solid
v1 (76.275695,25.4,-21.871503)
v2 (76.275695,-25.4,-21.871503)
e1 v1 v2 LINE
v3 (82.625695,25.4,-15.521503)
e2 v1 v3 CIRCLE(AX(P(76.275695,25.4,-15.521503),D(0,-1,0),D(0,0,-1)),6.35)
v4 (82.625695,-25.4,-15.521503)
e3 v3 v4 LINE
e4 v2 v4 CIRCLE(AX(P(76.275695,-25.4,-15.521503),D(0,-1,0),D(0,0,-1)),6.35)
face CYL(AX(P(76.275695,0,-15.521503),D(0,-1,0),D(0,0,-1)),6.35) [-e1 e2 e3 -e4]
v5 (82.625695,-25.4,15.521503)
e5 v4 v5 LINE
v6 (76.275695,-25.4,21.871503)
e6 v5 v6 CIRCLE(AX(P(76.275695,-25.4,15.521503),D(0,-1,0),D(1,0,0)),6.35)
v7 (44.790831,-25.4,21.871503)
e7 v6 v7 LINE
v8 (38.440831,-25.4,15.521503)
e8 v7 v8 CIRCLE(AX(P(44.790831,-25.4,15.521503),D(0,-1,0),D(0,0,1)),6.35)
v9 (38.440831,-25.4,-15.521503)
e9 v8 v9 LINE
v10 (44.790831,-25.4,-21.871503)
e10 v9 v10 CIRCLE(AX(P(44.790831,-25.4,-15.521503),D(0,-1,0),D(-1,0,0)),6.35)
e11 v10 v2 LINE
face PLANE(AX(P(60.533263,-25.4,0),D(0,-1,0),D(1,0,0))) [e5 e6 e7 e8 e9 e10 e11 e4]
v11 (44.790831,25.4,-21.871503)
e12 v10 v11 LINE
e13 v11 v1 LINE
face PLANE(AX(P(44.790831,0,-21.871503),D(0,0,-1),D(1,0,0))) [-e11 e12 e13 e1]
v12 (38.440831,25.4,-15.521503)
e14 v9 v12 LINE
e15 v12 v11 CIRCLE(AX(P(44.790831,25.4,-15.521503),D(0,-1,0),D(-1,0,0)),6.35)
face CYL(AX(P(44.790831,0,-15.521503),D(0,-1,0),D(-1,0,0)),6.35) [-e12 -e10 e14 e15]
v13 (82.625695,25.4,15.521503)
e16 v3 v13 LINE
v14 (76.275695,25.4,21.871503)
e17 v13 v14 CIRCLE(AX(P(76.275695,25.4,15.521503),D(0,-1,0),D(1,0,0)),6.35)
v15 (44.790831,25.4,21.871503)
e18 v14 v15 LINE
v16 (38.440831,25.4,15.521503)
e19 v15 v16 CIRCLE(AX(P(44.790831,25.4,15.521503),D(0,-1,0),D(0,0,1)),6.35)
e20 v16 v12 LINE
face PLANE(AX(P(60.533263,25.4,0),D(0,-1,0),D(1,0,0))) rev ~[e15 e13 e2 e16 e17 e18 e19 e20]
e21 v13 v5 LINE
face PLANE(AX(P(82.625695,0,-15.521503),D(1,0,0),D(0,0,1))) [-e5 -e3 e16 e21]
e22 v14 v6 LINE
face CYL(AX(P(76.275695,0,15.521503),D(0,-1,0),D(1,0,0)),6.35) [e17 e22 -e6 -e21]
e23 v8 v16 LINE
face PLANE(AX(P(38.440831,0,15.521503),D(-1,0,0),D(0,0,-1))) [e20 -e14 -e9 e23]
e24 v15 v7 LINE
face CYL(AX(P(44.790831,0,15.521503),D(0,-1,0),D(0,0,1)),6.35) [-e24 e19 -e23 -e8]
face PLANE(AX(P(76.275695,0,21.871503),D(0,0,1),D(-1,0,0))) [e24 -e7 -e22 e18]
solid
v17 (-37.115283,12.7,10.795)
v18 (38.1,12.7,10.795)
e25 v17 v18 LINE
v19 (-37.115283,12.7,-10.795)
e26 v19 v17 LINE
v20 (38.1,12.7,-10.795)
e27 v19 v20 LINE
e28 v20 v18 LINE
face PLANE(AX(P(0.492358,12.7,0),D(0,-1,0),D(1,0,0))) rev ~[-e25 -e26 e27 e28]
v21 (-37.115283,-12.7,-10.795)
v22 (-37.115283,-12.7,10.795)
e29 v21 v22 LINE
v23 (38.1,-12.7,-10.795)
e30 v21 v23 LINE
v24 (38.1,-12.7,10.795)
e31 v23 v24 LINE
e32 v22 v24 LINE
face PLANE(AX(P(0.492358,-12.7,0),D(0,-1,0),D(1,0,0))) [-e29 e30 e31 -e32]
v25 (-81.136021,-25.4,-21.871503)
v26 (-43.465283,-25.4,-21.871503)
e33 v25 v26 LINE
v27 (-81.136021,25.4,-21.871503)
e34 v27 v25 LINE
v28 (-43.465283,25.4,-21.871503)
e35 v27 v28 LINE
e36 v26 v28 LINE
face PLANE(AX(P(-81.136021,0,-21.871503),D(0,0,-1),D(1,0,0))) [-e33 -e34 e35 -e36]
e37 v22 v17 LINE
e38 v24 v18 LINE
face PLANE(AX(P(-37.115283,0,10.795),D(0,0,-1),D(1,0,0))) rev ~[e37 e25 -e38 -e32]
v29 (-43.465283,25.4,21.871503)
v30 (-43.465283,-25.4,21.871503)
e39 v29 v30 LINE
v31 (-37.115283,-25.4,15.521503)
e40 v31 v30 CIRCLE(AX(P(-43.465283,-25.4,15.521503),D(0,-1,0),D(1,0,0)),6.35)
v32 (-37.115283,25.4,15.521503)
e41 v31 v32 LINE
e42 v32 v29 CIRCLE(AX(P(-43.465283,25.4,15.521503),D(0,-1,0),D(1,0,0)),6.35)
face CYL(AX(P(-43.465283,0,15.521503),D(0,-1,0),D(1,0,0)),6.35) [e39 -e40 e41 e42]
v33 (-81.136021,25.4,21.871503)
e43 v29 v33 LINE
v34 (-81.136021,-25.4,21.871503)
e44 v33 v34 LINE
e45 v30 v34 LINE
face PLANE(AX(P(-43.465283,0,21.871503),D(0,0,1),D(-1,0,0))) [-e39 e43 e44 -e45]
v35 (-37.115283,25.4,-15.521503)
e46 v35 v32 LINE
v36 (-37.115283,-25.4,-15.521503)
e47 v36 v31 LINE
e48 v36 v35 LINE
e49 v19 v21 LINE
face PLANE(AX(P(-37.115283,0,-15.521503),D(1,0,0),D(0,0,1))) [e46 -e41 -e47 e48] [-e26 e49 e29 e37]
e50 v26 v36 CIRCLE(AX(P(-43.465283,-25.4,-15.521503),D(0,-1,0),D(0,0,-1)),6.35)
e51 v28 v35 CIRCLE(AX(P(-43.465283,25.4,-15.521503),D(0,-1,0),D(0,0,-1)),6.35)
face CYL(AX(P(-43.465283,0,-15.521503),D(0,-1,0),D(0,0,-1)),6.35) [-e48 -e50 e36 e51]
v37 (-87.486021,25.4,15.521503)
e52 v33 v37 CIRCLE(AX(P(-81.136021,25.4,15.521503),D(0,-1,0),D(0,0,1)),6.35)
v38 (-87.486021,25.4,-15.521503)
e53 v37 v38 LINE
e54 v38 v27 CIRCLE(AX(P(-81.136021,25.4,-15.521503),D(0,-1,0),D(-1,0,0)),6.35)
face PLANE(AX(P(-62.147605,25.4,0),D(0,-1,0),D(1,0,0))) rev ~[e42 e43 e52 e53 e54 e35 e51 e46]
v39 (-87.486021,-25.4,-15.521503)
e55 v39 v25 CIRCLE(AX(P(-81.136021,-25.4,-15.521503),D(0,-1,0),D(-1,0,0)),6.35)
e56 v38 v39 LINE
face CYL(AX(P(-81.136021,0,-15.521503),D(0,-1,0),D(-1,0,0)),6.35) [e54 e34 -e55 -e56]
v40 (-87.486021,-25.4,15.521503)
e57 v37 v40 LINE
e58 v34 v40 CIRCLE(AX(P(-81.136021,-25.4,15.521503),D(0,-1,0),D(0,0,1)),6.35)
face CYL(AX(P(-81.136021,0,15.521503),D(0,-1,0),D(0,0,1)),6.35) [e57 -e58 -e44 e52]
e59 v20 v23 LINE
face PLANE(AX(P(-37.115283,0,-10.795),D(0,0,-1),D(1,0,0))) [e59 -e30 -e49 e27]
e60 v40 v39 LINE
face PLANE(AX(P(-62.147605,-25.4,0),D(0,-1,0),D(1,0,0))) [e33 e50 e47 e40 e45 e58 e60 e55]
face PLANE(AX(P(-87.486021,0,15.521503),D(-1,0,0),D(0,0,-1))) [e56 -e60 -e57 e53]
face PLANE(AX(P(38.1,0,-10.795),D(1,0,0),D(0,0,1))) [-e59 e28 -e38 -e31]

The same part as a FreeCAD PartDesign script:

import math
import FreeCAD as App
import Part
import Sketcher
from FreeCAD import Vector
Q = App.Units.Quantity


def add_polygon(sketch, points):
    """Adds a closed chain of lines whose ends are joined by coincident constraints."""
    first, n = sketch.GeometryCount, len(points)
    for a, b in zip(points, points[1:] + points[:1]):
        sketch.addGeometry(Part.LineSegment(App.Vector(*a, 0), App.Vector(*b, 0)), False)
    for i in range(n):
        sketch.addConstraint(Sketcher.Constraint("Coincident", first + i, 2, first + (i + 1) % n, 1))

doc = App.newDocument("Part")
body = doc.addObject("PartDesign::Body", "Body")

sketch1 = doc.addObject("Sketcher::SketchObject", "Sketch")
body.addObject(sketch1)
sketch1.AttachmentSupport = (doc.XZ_Plane, [""])
sketch1.MapMode = "FlatFace"
sketch1.addGeometry(Part.LineSegment(Vector(45, -22, 0), Vector(76, -22, 0)), False)
sketch1.addGeometry(Part.ArcOfCircle(Part.Circle(Vector(76, -16, 0), Vector(0, 0, 1), 6), math.radians(-90), math.radians(0)), False)
sketch1.addGeometry(Part.LineSegment(Vector(83, -16, 0), Vector(83, 16, 0)), False)
sketch1.addGeometry(Part.ArcOfCircle(Part.Circle(Vector(76, 16, 0), Vector(0, 0, 1), 6), math.radians(0), math.radians(90)), False)
sketch1.addGeometry(Part.LineSegment(Vector(76, 22, 0), Vector(45, 22, 0)), False)
sketch1.addGeometry(Part.ArcOfCircle(Part.Circle(Vector(45, 16, 0), Vector(0, 0, 1), 6), math.radians(90), math.radians(180)), False)
sketch1.addGeometry(Part.LineSegment(Vector(38, 16, 0), Vector(38, -16, 0)), False)
sketch1.addGeometry(Part.ArcOfCircle(Part.Circle(Vector(45, -16, 0), Vector(0, 0, 1), 6), math.radians(180), math.radians(270)), False)
sketch1.addConstraint(Sketcher.Constraint("Tangent", 0, 2, 1, 1))
sketch1.addConstraint(Sketcher.Constraint("Tangent", 1, 2, 2, 1))
sketch1.addConstraint(Sketcher.Constraint("Tangent", 2, 2, 3, 1))
sketch1.addConstraint(Sketcher.Constraint("Tangent", 3, 2, 4, 1))
sketch1.addConstraint(Sketcher.Constraint("Tangent", 4, 2, 5, 1))
sketch1.addConstraint(Sketcher.Constraint("Tangent", 5, 2, 6, 1))
sketch1.addConstraint(Sketcher.Constraint("Tangent", 6, 2, 7, 1))
sketch1.addConstraint(Sketcher.Constraint("Tangent", 7, 2, 0, 1))
sketch1.addConstraint(Sketcher.Constraint("Horizontal", 0))
sketch1.addConstraint(Sketcher.Constraint("Vertical", 2))
sketch1.addConstraint(Sketcher.Constraint("Horizontal", 4))
sketch1.addConstraint(Sketcher.Constraint("Vertical", 6))
sketch1.addConstraint(Sketcher.Constraint("Equal", 1, 3))
sketch1.addConstraint(Sketcher.Constraint("Equal", 3, 5))
sketch1.addConstraint(Sketcher.Constraint("Equal", 5, 7))
sketch1.addConstraint(Sketcher.Constraint("Radius", 1, Q("0.25 in")))
sketch1.addConstraint(Sketcher.Constraint("DistanceX", 0, 1, 0, 2, 31.484864))
sketch1.addConstraint(Sketcher.Constraint("DistanceY", 2, 1, 2, 2, 31.043007))
sketch1.addConstraint(Sketcher.Constraint("DistanceX", -1, 1, 5, 3, 44.790831))
sketch1.addConstraint(Sketcher.Constraint("DistanceY", 1, 3, -1, 1, 15.521503))
pad1 = doc.addObject("PartDesign::Pad", "Pad")
body.addObject(pad1)
pad1.Profile = sketch1
pad1.Length = Q("2 in")
pad1.Midplane = True
body2 = doc.addObject("PartDesign::Body", "Body001")

sketch2 = doc.addObject("Sketcher::SketchObject", "Sketch001")
body2.addObject(sketch2)
sketch2.AttachmentSupport = (doc.getObject("XZ_Plane001"), [""])
sketch2.MapMode = "FlatFace"
sketch2.addGeometry(Part.ArcOfCircle(Part.Circle(Vector(-43, 16, 0), Vector(0, 0, 1), 6), math.radians(0), math.radians(90)), False)
sketch2.addGeometry(Part.LineSegment(Vector(-43, 22, 0), Vector(-81, 22, 0)), False)
sketch2.addGeometry(Part.ArcOfCircle(Part.Circle(Vector(-81, 16, 0), Vector(0, 0, 1), 6), math.radians(90), math.radians(180)), False)
sketch2.addGeometry(Part.LineSegment(Vector(-87, 16, 0), Vector(-87, -16, 0)), False)
sketch2.addGeometry(Part.ArcOfCircle(Part.Circle(Vector(-81, -16, 0), Vector(0, 0, 1), 6), math.radians(180), math.radians(270)), False)
sketch2.addGeometry(Part.LineSegment(Vector(-81, -22, 0), Vector(-43, -22, 0)), False)
sketch2.addGeometry(Part.ArcOfCircle(Part.Circle(Vector(-43, -16, 0), Vector(0, 0, 1), 6), math.radians(-90), math.radians(0)), False)
sketch2.addGeometry(Part.LineSegment(Vector(-37, -16, 0), Vector(-37, 16, 0)), False)
sketch2.addConstraint(Sketcher.Constraint("Tangent", 0, 2, 1, 1))
sketch2.addConstraint(Sketcher.Constraint("Tangent", 1, 2, 2, 1))
sketch2.addConstraint(Sketcher.Constraint("Tangent", 2, 2, 3, 1))
sketch2.addConstraint(Sketcher.Constraint("Tangent", 3, 2, 4, 1))
sketch2.addConstraint(Sketcher.Constraint("Tangent", 4, 2, 5, 1))
sketch2.addConstraint(Sketcher.Constraint("Tangent", 5, 2, 6, 1))
sketch2.addConstraint(Sketcher.Constraint("Tangent", 6, 2, 7, 1))
sketch2.addConstraint(Sketcher.Constraint("Tangent", 7, 2, 0, 1))
sketch2.addConstraint(Sketcher.Constraint("Horizontal", 1))
sketch2.addConstraint(Sketcher.Constraint("Vertical", 3))
sketch2.addConstraint(Sketcher.Constraint("Horizontal", 5))
sketch2.addConstraint(Sketcher.Constraint("Vertical", 7))
sketch2.addConstraint(Sketcher.Constraint("Equal", 0, 2))
sketch2.addConstraint(Sketcher.Constraint("Equal", 2, 4))
sketch2.addConstraint(Sketcher.Constraint("Equal", 4, 6))
sketch2.addConstraint(Sketcher.Constraint("Radius", 0, Q("0.25 in")))
sketch2.addConstraint(Sketcher.Constraint("DistanceX", 1, 2, 1, 1, Q("1.4830999 in")))
sketch2.addConstraint(Sketcher.Constraint("DistanceY", 3, 2, 3, 1, 31.043007))
sketch2.addConstraint(Sketcher.Constraint("DistanceX", 2, 3, -1, 1, 81.136021))
sketch2.addConstraint(Sketcher.Constraint("DistanceY", -1, 1, 0, 3, 15.521503))
pad2 = doc.addObject("PartDesign::Pad", "Pad001")
body2.addObject(pad2)
pad2.Profile = sketch2
pad2.Length = Q("2 in")
pad2.Midplane = True

sketch3 = doc.addObject("Sketcher::SketchObject", "Sketch002")
body2.addObject(sketch3)
sketch3.AttachmentSupport = (doc.getObject("XZ_Plane001"), [""])
sketch3.MapMode = "FlatFace"
add_polygon(sketch3, [(-37, 11), (-37, -11), (38, -11), (38, 11)])
sketch3.addConstraint(Sketcher.Constraint("Vertical", 0))
sketch3.addConstraint(Sketcher.Constraint("Horizontal", 1))
sketch3.addConstraint(Sketcher.Constraint("Vertical", 2))
sketch3.addConstraint(Sketcher.Constraint("Horizontal", 3))
sketch3.addConstraint(Sketcher.Constraint("DistanceY", 0, 2, 0, 1, Q("0.85 in")))
sketch3.addConstraint(Sketcher.Constraint("DistanceX", -1, 1, 1, 2, Q("1.5 in")))
sketch3.addConstraint(Sketcher.Constraint("DistanceY", 0, 2, -1, 1, Q("0.425 in")))
sketch3.addConstraint(Sketcher.Constraint("DistanceX", 1, 1, 1, 2, 75.215283))
pad3 = doc.addObject("PartDesign::Pad", "Pad002")
body2.addObject(pad3)
pad3.Profile = sketch3
pad3.Length = Q("1 in")
pad3.Midplane = True

doc.recompute()
